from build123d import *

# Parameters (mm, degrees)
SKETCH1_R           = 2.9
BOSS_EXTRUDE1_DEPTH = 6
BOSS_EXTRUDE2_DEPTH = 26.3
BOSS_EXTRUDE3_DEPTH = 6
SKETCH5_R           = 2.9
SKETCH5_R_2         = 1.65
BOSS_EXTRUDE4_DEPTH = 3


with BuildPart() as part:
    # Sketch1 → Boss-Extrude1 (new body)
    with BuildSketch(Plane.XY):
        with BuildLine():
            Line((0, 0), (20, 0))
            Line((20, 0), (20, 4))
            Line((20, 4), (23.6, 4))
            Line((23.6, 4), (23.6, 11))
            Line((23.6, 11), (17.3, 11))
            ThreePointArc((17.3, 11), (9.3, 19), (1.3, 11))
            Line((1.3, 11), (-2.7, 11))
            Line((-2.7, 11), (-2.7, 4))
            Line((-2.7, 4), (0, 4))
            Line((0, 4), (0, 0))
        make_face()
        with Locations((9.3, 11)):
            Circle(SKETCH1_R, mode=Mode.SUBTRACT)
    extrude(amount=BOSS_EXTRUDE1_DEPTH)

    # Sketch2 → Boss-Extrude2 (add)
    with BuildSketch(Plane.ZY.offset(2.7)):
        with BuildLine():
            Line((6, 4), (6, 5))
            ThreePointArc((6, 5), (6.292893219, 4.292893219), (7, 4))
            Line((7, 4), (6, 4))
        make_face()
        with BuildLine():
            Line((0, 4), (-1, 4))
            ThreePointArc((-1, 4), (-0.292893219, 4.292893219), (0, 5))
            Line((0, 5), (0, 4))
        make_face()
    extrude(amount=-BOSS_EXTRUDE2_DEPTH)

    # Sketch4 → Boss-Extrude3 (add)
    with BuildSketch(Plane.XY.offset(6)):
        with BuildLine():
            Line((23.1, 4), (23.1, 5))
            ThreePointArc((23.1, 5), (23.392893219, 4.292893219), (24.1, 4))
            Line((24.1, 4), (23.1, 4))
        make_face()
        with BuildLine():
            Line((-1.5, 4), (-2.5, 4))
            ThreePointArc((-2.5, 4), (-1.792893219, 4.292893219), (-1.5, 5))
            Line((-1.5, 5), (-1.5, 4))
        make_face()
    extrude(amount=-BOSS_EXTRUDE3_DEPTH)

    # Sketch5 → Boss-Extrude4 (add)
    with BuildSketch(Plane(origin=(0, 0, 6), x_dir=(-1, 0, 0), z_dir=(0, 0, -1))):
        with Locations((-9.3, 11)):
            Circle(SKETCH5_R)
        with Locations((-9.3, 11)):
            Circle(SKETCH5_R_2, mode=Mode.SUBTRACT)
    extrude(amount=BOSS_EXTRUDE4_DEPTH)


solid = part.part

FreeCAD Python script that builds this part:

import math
import FreeCAD as App
import Part
import Sketcher

V = App.Vector
Q = App.Units.Quantity

doc = App.newDocument("Part")
body = doc.addObject("PartDesign::Body", "Body")

sketch1 = doc.addObject("Sketcher::SketchObject", "Sketch")
body.addObject(sketch1)
sketch1.AttachmentSupport = (doc.XY_Plane, [""])
sketch1.MapMode = "FlatFace"
sketch1.addGeometry([
    Part.LineSegment(V(0, 0, 0), V(20, 0, 0)),
    Part.LineSegment(V(20, 0, 0), V(20, 4, 0)),
    Part.LineSegment(V(20, 4, 0), V(23.6, 4, 0)),
    Part.LineSegment(V(23.6, 4, 0), V(23.6, 11, 0)),
    Part.LineSegment(V(23.6, 11, 0), V(17.3, 11, 0)),
    Part.ArcOfCircle(Part.Circle(V(9.3, 11, 0), V(0, 0, 1), 8), math.radians(0), math.radians(180)),
    Part.LineSegment(V(1.3, 11, 0), V(-2.7, 11, 0)),
    Part.LineSegment(V(-2.7, 11, 0), V(-2.7, 4, 0)),
    Part.LineSegment(V(-2.7, 4, 0), V(0, 4, 0)),
    Part.LineSegment(V(0, 4, 0), V(0, 0, 0)),
    Part.Circle(V(9.3, 11, 0), V(0, 0, 1), 2.9),
], False)
sketch1.addConstraint([
    Sketcher.Constraint("Coincident", 0, 2, 1, 1),
    Sketcher.Constraint("Coincident", 1, 2, 2, 1),
    Sketcher.Constraint("Coincident", 2, 2, 3, 1),
    Sketcher.Constraint("Coincident", 3, 2, 4, 1),
    Sketcher.Constraint("Coincident", 4, 2, 5, 1),
    Sketcher.Constraint("Coincident", 5, 2, 6, 1),
    Sketcher.Constraint("Coincident", 6, 2, 7, 1),
    Sketcher.Constraint("Coincident", 7, 2, 8, 1),
    Sketcher.Constraint("Coincident", 8, 2, 9, 1),
    Sketcher.Constraint("Coincident", 9, 2, 0, 1),
    Sketcher.Constraint("Horizontal", 0),
    Sketcher.Constraint("Vertical", 1),
    Sketcher.Constraint("Horizontal", 2),
    Sketcher.Constraint("Vertical", 3),
    Sketcher.Constraint("Horizontal", 4),
    Sketcher.Constraint("Horizontal", 6),
    Sketcher.Constraint("Vertical", 7),
    Sketcher.Constraint("Horizontal", 8),
    Sketcher.Constraint("Vertical", 9),
    Sketcher.Constraint("Coincident", 9, 2, -1, 1),
    Sketcher.Constraint("Coincident", 10, 3, 5, 3),
    Sketcher.Constraint("Horizontal", 10, 3, 3, 2),
    Sketcher.Constraint("Horizontal", 4, 2, 5, 2),
    Sketcher.Constraint("Horizontal", 2, 2, 7, 2),
    Sketcher.Constraint("Equal", 6, 1),
    Sketcher.Constraint("Radius", 5, Q("8 mm")),
    Sketcher.Constraint("Diameter", 10, Q("5.8 mm")),
    Sketcher.Constraint("DistanceX", 0, 1, 0, 2, Q("20 mm")),
    Sketcher.Constraint("DistanceX", 6, 2, 6, 1, Q("4 mm")),
    Sketcher.Constraint("DistanceY", 3, 1, 3, 2, Q("7 mm")),
    Sketcher.Constraint("DistanceX", 2, 1, 2, 2, Q("3.6 mm")),
    Sketcher.Constraint("DistanceX", 4, 2, 4, 1, Q("6.3 mm")),
])
pad1 = doc.addObject("PartDesign::Pad", "Pad")
body.addObject(pad1)
pad1.Profile = sketch1
pad1.Length = 6

sketch2 = doc.addObject("Sketcher::SketchObject", "Sketch001")
body.addObject(sketch2)
sketch2.AttachmentSupport = (doc.YZ_Plane, [""])
sketch2.MapMode = "FlatFace"
sketch2.AttachmentOffset = App.Placement(V(0, 0, -2.7), App.Rotation())
sketch2.addGeometry([
    Part.LineSegment(V(5, 6, 0), V(4, 6, 0)),
    Part.LineSegment(V(4, 6, 0), V(4, 7, 0)),
    Part.ArcOfCircle(Part.Circle(V(5, 7, 0), V(0, 0, 1), 1), math.radians(-180), math.radians(-90)),
    Part.LineSegment(V(4, -1, 0), V(4, 0, 0)),
    Part.LineSegment(V(4, 0, 0), V(5, 0, 0)),
    Part.ArcOfCircle(Part.Circle(V(5, -1, 0), V(0, 0, 1), 1), math.radians(90), math.radians(180)),
], False)
sketch2.addConstraint([
    Sketcher.Constraint("Coincident", 0, 2, 1, 1),
    Sketcher.Constraint("Tangent", 1, 2, 2, 1),
    Sketcher.Constraint("Tangent", 2, 2, 0, 1),
    Sketcher.Constraint("Coincident", 3, 2, 4, 1),
    Sketcher.Constraint("Tangent", 4, 2, 5, 1),
    Sketcher.Constraint("Tangent", 5, 2, 3, 1),
    Sketcher.Constraint("Horizontal", 0),
    Sketcher.Constraint("Vertical", 1),
    Sketcher.Constraint("Vertical", 3),
    Sketcher.Constraint("Horizontal", 4),
    Sketcher.Constraint("Equal", 2, 5),
    Sketcher.Constraint("PointOnObject", 3, 2, -1),
    Sketcher.Constraint("Vertical", 2, 3, 5, 3),
    Sketcher.Constraint("Radius", 2, Q("1 mm")),
    Sketcher.Constraint("DistanceX", -1, 1, 2, 3, Q("5 mm")),
    Sketcher.Constraint("DistanceY", -1, 1, 2, 3, Q("7 mm")),
])
pad2 = doc.addObject("PartDesign::Pad", "Pad001")
body.addObject(pad2)
pad2.Profile = sketch2
pad2.Length = 26.3

sketch3 = doc.addObject("Sketcher::SketchObject", "Sketch002")
body.addObject(sketch3)
sketch3.AttachmentSupport = (doc.XY_Plane, [""])
sketch3.MapMode = "FlatFace"
sketch3.AttachmentOffset = App.Placement(V(0, 0, 6), App.Rotation())
sketch3.addGeometry([
    Part.LineSegment(V(23.1, 5, 0), V(23.1, 4, 0)),
    Part.LineSegment(V(23.1, 4, 0), V(24.1, 4, 0)),
    Part.ArcOfCircle(Part.Circle(V(24.1, 5, 0), V(0, 0, 1), 1), math.radians(-180), math.radians(-90)),
    Part.LineSegment(V(-2.5, 4, 0), V(-1.5, 4, 0)),
    Part.LineSegment(V(-1.5, 4, 0), V(-1.5, 5, 0)),
    Part.ArcOfCircle(Part.Circle(V(-2.5, 5, 0), V(0, 0, 1), 1), math.radians(-90), math.radians(0)),
], False)
sketch3.addConstraint([
    Sketcher.Constraint("Coincident", 0, 2, 1, 1),
    Sketcher.Constraint("Tangent", 1, 2, 2, 2),
    Sketcher.Constraint("Tangent", 2, 1, 0, 1),
    Sketcher.Constraint("Coincident", 3, 2, 4, 1),
    Sketcher.Constraint("Tangent", 4, 2, 5, 2),
    Sketcher.Constraint("Tangent", 5, 1, 3, 1),
    Sketcher.Constraint("Vertical", 0),
    Sketcher.Constraint("Horizontal", 1),
    Sketcher.Constraint("Horizontal", 3),
    Sketcher.Constraint("Vertical", 4),
    Sketcher.Constraint("Equal", 2, 5),
    Sketcher.Constraint("Horizontal", 2, 3, 5, 3),
    Sketcher.Constraint("Radius", 2, Q("1 mm")),
    Sketcher.Constraint("DistanceY", -1, 1, 2, 3, Q("5 mm")),
    Sketcher.Constraint("DistanceX", -1, 1, 2, 3, Q("24.1 mm")),
    Sketcher.Constraint("DistanceX", 5, 3, -1, 1, Q("2.5 mm")),
])
pad3 = doc.addObject("PartDesign::Pad", "Pad002")
body.addObject(pad3)
pad3.Profile = sketch3
pad3.Length = 6
pad3.Reversed = True

sketch4 = doc.addObject("Sketcher::SketchObject", "Sketch003")
body.addObject(sketch4)
sketch4.AttachmentSupport = (doc.XY_Plane, [""])
sketch4.MapMode = "FlatFace"
sketch4.AttachmentOffset = App.Placement(V(0, 0, 6), App.Rotation())
sketch4.addGeometry([
    Part.Circle(V(9.3, 11, 0), V(0, 0, 1), 2.9),
    Part.Circle(V(9.3, 11, 0), V(0, 0, 1), 1.6),
], False)
sketch4.addConstraint([
    Sketcher.Constraint("Coincident", 1, 3, 0, 3),
    Sketcher.Constraint("Diameter", 0, Q("5.8 mm")),
    Sketcher.Constraint("Diameter", 1, Q("3.3 mm")),
    Sketcher.Constraint("DistanceY", -1, 1, 0, 3, Q("11 mm")),
    Sketcher.Constraint("DistanceX", -1, 1, 0, 3, Q("9.3 mm")),
])
pad4 = doc.addObject("PartDesign::Pad", "Pad003")
body.addObject(pad4)
pad4.Profile = sketch4
pad4.Length = 3
pad4.Reversed = True

doc.recompute()
